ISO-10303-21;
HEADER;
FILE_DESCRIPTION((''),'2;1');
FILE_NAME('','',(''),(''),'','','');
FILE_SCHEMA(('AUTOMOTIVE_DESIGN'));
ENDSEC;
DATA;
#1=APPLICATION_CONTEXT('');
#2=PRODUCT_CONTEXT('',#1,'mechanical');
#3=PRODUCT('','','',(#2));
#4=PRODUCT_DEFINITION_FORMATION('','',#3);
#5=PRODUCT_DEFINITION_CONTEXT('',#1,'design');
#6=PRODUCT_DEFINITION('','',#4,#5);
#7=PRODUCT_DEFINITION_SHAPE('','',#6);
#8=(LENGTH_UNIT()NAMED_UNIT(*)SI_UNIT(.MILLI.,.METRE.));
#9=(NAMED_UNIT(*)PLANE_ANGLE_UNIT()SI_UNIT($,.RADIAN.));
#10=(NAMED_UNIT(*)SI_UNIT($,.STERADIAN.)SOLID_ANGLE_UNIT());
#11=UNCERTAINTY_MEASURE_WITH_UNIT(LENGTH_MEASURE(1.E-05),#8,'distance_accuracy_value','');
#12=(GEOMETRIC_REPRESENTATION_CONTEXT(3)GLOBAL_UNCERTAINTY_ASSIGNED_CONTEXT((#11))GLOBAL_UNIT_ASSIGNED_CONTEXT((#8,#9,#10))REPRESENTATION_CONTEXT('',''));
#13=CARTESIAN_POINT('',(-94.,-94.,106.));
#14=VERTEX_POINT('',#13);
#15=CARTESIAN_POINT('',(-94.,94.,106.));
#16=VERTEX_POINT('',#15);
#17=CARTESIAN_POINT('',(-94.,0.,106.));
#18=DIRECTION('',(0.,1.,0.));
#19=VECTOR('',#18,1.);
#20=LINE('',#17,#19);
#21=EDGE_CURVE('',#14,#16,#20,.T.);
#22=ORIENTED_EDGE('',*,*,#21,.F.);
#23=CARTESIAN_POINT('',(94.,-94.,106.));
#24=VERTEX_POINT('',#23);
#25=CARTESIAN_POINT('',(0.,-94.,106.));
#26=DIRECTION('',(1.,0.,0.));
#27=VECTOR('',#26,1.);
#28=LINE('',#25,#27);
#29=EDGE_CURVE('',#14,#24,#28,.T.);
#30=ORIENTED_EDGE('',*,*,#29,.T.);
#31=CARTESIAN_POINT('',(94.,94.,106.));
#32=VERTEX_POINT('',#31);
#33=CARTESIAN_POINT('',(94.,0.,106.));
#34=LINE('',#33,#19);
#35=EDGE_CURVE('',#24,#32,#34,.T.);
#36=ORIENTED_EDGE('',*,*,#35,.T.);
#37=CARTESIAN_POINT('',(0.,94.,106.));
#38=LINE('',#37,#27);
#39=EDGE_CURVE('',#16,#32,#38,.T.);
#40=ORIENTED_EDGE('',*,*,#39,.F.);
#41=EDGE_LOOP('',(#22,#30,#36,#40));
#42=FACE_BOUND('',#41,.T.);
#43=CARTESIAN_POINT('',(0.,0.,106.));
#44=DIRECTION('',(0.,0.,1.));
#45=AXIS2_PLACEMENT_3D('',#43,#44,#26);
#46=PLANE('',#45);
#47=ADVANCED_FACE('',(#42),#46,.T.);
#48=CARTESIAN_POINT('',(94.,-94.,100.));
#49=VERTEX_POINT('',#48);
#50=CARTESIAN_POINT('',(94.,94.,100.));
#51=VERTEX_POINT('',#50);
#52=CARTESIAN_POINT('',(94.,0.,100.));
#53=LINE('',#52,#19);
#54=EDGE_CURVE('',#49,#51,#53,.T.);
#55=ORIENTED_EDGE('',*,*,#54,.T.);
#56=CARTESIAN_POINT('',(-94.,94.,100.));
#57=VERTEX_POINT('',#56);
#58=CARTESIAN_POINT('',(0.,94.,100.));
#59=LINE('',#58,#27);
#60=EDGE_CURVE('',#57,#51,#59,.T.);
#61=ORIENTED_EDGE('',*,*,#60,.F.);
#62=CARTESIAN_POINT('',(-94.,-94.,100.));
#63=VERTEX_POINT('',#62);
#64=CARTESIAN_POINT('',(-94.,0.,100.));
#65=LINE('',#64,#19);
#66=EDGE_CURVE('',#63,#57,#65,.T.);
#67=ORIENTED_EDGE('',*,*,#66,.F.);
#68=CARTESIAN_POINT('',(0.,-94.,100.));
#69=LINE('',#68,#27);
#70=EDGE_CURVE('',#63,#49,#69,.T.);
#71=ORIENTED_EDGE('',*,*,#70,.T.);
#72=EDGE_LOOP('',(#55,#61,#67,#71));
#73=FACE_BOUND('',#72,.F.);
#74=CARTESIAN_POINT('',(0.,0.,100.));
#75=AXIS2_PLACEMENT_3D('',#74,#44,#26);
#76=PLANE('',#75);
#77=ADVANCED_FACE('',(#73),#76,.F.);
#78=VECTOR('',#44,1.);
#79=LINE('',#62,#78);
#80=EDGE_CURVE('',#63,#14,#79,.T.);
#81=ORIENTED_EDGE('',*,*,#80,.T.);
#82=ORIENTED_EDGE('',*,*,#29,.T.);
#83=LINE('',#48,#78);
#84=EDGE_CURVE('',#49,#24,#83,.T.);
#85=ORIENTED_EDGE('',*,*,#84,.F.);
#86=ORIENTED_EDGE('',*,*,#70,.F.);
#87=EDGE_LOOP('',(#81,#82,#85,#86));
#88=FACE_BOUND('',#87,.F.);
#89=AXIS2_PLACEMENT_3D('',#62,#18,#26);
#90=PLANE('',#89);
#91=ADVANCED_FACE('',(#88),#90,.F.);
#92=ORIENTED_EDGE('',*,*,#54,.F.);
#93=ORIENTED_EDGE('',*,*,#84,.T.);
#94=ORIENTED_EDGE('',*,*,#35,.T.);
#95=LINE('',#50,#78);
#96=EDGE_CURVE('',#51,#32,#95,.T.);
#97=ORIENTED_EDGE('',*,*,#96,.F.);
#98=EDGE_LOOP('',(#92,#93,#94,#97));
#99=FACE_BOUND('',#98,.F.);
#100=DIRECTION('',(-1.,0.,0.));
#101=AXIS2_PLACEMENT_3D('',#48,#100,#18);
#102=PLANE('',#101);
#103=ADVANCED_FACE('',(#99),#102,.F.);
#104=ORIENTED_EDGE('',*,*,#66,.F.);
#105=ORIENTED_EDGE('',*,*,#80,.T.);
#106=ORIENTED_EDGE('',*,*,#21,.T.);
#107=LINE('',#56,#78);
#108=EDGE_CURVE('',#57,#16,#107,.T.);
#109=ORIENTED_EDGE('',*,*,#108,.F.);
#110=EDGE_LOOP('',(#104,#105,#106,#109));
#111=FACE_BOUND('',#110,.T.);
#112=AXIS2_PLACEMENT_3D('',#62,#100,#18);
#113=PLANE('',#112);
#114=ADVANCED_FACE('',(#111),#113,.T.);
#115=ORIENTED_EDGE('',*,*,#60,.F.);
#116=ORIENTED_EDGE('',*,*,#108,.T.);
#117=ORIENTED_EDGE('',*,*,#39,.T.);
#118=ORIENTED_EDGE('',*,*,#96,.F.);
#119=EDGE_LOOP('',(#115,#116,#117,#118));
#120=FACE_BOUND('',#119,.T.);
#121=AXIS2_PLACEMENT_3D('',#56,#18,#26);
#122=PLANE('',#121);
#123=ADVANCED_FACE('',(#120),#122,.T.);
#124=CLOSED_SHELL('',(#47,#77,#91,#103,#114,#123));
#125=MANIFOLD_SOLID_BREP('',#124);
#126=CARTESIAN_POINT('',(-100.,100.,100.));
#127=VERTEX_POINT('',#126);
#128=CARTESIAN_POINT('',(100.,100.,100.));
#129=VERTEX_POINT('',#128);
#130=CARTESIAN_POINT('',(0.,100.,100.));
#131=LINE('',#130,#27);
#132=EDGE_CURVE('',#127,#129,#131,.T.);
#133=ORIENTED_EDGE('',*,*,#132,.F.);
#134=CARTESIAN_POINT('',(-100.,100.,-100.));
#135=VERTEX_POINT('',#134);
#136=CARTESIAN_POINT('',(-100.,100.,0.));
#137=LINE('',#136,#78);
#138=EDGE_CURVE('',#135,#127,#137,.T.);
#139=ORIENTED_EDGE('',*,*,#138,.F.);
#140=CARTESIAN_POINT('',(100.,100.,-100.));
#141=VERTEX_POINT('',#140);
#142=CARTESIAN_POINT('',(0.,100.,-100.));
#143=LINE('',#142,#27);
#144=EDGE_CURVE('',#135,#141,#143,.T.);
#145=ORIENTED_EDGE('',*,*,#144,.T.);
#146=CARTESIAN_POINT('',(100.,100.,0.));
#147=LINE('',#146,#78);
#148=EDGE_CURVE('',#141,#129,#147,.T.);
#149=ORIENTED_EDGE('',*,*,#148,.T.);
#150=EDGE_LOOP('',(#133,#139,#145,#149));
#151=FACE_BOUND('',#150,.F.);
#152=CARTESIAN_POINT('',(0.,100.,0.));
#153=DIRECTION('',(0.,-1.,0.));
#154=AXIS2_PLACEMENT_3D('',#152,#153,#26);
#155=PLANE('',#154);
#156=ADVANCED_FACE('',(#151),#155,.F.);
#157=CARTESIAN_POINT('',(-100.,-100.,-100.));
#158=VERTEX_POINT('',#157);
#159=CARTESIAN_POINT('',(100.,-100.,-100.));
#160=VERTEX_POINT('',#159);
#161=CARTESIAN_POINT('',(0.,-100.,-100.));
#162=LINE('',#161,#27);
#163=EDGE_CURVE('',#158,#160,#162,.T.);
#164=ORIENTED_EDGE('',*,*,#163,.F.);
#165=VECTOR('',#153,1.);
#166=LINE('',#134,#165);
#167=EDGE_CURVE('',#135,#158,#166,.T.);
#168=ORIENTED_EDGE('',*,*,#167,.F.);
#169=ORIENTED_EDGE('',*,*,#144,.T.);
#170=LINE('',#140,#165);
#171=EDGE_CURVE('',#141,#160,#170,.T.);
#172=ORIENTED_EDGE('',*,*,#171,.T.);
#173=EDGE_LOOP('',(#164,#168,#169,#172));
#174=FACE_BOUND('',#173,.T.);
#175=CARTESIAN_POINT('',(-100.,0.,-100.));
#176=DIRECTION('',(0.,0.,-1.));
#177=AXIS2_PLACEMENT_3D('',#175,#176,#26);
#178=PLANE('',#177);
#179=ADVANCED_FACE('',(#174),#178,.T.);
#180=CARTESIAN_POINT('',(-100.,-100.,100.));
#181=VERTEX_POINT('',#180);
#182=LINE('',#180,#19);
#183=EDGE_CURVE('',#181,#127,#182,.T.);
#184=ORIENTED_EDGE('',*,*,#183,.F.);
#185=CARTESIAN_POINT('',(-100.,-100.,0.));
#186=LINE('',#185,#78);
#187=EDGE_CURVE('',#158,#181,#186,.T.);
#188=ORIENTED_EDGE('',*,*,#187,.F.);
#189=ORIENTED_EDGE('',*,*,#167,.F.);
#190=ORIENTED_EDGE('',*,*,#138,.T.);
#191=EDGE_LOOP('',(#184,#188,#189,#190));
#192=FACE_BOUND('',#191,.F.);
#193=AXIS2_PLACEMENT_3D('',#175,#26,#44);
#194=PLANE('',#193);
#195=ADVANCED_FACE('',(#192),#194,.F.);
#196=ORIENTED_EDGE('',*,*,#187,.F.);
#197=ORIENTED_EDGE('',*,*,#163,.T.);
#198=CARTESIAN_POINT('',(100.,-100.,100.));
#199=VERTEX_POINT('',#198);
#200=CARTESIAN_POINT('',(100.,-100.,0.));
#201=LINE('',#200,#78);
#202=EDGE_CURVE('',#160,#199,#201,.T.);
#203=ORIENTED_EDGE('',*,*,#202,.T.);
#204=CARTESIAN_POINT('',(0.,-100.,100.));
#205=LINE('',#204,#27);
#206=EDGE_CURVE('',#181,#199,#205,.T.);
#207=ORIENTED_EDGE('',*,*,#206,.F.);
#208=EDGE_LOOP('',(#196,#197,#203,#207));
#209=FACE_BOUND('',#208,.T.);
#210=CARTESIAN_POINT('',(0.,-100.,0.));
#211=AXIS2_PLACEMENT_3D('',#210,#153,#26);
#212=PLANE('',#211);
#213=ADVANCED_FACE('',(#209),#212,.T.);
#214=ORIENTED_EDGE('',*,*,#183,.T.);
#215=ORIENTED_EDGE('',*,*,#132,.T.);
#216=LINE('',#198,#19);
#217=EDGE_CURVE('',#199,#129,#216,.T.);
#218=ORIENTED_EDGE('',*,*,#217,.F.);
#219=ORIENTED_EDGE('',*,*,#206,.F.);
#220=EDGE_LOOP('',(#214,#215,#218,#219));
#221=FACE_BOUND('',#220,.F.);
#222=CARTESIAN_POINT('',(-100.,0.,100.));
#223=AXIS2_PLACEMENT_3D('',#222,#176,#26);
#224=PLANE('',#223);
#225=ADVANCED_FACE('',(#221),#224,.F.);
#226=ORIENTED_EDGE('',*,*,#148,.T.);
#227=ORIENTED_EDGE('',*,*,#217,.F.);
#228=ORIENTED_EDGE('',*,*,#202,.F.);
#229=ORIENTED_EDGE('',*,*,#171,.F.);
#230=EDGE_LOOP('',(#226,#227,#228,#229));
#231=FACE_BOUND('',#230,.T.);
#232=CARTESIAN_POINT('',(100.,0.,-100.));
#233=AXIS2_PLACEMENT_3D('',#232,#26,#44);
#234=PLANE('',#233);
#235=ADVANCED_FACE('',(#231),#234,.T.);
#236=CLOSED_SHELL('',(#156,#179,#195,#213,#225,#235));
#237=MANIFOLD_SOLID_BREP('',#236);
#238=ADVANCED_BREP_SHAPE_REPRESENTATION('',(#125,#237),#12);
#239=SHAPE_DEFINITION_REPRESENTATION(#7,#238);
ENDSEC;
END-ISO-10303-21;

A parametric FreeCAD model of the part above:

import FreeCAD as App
import Part
import Sketcher
from FreeCAD import Vector
Q = App.Units.Quantity

doc = App.newDocument("Part")
body = doc.addObject("PartDesign::Body", "Body")

sketch1 = doc.addObject("Sketcher::SketchObject", "Sketch")
body.addObject(sketch1)
sketch1.AttachmentSupport = (doc.XZ_Plane, [""])
sketch1.MapMode = "FlatFace"
sketch1.addGeometry([
    Part.LineSegment(Vector(-100, 100, 0), Vector(-100, -100, 0)),
    Part.LineSegment(Vector(-100, -100, 0), Vector(100, -100, 0)),
    Part.LineSegment(Vector(100, -100, 0), Vector(100, 100, 0)),
    Part.LineSegment(Vector(100, 100, 0), Vector(-100, 100, 0)),
], False)
sketch1.addConstraint([
    Sketcher.Constraint("Coincident", 0, 2, 1, 1),
    Sketcher.Constraint("Coincident", 1, 2, 2, 1),
    Sketcher.Constraint("Coincident", 2, 2, 3, 1),
    Sketcher.Constraint("Coincident", 3, 2, 0, 1),
    Sketcher.Constraint("Vertical", 0),
    Sketcher.Constraint("Horizontal", 1),
    Sketcher.Constraint("Vertical", 2),
    Sketcher.Constraint("Horizontal", 3),
    Sketcher.Constraint("Symmetric", 0, 2, 2, 2, -1, 1),
    Sketcher.Constraint("Equal", 3, 0),
    Sketcher.Constraint("DistanceX", 1, 1, 1, 2, Q("200 mm")),
])
pad1 = doc.addObject("PartDesign::Pad", "Pad")
body.addObject(pad1)
pad1.Profile = sketch1
pad1.Length = 200
pad1.Midplane = True
body2 = doc.addObject("PartDesign::Body", "Body001")

sketch2 = doc.addObject("Sketcher::SketchObject", "Sketch001")
body2.addObject(sketch2)
sketch2.AttachmentSupport = (doc.getObject("XY_Plane001"), [""])
sketch2.MapMode = "FlatFace"
sketch2.AttachmentOffset = App.Placement(Vector(0, 0, 100), App.Rotation())
sketch2.addGeometry([
    Part.LineSegment(Vector(-94, 94, 0), Vector(-94, -94, 0)),
    Part.LineSegment(Vector(-94, -94, 0), Vector(94, -94, 0)),
    Part.LineSegment(Vector(94, -94, 0), Vector(94, 94, 0)),
    Part.LineSegment(Vector(94, 94, 0), Vector(-94, 94, 0)),
], False)
sketch2.addConstraint([
    Sketcher.Constraint("Coincident", 0, 2, 1, 1),
    Sketcher.Constraint("Coincident", 1, 2, 2, 1),
    Sketcher.Constraint("Coincident", 2, 2, 3, 1),
    Sketcher.Constraint("Coincident", 3, 2, 0, 1),
    Sketcher.Constraint("Vertical", 0),
    Sketcher.Constraint("Horizontal", 1),
    Sketcher.Constraint("Vertical", 2),
    Sketcher.Constraint("Horizontal", 3),
    Sketcher.Constraint("Symmetric", 0, 2, 2, 2, -1, 1),
    Sketcher.Constraint("Equal", 3, 0),
    Sketcher.Constraint("DistanceX", 1, 1, 1, 2, Q("188 mm")),
])
pad2 = doc.addObject("PartDesign::Pad", "Pad001")
body2.addObject(pad2)
pad2.Profile = sketch2
pad2.Length = 6

doc.recompute()
